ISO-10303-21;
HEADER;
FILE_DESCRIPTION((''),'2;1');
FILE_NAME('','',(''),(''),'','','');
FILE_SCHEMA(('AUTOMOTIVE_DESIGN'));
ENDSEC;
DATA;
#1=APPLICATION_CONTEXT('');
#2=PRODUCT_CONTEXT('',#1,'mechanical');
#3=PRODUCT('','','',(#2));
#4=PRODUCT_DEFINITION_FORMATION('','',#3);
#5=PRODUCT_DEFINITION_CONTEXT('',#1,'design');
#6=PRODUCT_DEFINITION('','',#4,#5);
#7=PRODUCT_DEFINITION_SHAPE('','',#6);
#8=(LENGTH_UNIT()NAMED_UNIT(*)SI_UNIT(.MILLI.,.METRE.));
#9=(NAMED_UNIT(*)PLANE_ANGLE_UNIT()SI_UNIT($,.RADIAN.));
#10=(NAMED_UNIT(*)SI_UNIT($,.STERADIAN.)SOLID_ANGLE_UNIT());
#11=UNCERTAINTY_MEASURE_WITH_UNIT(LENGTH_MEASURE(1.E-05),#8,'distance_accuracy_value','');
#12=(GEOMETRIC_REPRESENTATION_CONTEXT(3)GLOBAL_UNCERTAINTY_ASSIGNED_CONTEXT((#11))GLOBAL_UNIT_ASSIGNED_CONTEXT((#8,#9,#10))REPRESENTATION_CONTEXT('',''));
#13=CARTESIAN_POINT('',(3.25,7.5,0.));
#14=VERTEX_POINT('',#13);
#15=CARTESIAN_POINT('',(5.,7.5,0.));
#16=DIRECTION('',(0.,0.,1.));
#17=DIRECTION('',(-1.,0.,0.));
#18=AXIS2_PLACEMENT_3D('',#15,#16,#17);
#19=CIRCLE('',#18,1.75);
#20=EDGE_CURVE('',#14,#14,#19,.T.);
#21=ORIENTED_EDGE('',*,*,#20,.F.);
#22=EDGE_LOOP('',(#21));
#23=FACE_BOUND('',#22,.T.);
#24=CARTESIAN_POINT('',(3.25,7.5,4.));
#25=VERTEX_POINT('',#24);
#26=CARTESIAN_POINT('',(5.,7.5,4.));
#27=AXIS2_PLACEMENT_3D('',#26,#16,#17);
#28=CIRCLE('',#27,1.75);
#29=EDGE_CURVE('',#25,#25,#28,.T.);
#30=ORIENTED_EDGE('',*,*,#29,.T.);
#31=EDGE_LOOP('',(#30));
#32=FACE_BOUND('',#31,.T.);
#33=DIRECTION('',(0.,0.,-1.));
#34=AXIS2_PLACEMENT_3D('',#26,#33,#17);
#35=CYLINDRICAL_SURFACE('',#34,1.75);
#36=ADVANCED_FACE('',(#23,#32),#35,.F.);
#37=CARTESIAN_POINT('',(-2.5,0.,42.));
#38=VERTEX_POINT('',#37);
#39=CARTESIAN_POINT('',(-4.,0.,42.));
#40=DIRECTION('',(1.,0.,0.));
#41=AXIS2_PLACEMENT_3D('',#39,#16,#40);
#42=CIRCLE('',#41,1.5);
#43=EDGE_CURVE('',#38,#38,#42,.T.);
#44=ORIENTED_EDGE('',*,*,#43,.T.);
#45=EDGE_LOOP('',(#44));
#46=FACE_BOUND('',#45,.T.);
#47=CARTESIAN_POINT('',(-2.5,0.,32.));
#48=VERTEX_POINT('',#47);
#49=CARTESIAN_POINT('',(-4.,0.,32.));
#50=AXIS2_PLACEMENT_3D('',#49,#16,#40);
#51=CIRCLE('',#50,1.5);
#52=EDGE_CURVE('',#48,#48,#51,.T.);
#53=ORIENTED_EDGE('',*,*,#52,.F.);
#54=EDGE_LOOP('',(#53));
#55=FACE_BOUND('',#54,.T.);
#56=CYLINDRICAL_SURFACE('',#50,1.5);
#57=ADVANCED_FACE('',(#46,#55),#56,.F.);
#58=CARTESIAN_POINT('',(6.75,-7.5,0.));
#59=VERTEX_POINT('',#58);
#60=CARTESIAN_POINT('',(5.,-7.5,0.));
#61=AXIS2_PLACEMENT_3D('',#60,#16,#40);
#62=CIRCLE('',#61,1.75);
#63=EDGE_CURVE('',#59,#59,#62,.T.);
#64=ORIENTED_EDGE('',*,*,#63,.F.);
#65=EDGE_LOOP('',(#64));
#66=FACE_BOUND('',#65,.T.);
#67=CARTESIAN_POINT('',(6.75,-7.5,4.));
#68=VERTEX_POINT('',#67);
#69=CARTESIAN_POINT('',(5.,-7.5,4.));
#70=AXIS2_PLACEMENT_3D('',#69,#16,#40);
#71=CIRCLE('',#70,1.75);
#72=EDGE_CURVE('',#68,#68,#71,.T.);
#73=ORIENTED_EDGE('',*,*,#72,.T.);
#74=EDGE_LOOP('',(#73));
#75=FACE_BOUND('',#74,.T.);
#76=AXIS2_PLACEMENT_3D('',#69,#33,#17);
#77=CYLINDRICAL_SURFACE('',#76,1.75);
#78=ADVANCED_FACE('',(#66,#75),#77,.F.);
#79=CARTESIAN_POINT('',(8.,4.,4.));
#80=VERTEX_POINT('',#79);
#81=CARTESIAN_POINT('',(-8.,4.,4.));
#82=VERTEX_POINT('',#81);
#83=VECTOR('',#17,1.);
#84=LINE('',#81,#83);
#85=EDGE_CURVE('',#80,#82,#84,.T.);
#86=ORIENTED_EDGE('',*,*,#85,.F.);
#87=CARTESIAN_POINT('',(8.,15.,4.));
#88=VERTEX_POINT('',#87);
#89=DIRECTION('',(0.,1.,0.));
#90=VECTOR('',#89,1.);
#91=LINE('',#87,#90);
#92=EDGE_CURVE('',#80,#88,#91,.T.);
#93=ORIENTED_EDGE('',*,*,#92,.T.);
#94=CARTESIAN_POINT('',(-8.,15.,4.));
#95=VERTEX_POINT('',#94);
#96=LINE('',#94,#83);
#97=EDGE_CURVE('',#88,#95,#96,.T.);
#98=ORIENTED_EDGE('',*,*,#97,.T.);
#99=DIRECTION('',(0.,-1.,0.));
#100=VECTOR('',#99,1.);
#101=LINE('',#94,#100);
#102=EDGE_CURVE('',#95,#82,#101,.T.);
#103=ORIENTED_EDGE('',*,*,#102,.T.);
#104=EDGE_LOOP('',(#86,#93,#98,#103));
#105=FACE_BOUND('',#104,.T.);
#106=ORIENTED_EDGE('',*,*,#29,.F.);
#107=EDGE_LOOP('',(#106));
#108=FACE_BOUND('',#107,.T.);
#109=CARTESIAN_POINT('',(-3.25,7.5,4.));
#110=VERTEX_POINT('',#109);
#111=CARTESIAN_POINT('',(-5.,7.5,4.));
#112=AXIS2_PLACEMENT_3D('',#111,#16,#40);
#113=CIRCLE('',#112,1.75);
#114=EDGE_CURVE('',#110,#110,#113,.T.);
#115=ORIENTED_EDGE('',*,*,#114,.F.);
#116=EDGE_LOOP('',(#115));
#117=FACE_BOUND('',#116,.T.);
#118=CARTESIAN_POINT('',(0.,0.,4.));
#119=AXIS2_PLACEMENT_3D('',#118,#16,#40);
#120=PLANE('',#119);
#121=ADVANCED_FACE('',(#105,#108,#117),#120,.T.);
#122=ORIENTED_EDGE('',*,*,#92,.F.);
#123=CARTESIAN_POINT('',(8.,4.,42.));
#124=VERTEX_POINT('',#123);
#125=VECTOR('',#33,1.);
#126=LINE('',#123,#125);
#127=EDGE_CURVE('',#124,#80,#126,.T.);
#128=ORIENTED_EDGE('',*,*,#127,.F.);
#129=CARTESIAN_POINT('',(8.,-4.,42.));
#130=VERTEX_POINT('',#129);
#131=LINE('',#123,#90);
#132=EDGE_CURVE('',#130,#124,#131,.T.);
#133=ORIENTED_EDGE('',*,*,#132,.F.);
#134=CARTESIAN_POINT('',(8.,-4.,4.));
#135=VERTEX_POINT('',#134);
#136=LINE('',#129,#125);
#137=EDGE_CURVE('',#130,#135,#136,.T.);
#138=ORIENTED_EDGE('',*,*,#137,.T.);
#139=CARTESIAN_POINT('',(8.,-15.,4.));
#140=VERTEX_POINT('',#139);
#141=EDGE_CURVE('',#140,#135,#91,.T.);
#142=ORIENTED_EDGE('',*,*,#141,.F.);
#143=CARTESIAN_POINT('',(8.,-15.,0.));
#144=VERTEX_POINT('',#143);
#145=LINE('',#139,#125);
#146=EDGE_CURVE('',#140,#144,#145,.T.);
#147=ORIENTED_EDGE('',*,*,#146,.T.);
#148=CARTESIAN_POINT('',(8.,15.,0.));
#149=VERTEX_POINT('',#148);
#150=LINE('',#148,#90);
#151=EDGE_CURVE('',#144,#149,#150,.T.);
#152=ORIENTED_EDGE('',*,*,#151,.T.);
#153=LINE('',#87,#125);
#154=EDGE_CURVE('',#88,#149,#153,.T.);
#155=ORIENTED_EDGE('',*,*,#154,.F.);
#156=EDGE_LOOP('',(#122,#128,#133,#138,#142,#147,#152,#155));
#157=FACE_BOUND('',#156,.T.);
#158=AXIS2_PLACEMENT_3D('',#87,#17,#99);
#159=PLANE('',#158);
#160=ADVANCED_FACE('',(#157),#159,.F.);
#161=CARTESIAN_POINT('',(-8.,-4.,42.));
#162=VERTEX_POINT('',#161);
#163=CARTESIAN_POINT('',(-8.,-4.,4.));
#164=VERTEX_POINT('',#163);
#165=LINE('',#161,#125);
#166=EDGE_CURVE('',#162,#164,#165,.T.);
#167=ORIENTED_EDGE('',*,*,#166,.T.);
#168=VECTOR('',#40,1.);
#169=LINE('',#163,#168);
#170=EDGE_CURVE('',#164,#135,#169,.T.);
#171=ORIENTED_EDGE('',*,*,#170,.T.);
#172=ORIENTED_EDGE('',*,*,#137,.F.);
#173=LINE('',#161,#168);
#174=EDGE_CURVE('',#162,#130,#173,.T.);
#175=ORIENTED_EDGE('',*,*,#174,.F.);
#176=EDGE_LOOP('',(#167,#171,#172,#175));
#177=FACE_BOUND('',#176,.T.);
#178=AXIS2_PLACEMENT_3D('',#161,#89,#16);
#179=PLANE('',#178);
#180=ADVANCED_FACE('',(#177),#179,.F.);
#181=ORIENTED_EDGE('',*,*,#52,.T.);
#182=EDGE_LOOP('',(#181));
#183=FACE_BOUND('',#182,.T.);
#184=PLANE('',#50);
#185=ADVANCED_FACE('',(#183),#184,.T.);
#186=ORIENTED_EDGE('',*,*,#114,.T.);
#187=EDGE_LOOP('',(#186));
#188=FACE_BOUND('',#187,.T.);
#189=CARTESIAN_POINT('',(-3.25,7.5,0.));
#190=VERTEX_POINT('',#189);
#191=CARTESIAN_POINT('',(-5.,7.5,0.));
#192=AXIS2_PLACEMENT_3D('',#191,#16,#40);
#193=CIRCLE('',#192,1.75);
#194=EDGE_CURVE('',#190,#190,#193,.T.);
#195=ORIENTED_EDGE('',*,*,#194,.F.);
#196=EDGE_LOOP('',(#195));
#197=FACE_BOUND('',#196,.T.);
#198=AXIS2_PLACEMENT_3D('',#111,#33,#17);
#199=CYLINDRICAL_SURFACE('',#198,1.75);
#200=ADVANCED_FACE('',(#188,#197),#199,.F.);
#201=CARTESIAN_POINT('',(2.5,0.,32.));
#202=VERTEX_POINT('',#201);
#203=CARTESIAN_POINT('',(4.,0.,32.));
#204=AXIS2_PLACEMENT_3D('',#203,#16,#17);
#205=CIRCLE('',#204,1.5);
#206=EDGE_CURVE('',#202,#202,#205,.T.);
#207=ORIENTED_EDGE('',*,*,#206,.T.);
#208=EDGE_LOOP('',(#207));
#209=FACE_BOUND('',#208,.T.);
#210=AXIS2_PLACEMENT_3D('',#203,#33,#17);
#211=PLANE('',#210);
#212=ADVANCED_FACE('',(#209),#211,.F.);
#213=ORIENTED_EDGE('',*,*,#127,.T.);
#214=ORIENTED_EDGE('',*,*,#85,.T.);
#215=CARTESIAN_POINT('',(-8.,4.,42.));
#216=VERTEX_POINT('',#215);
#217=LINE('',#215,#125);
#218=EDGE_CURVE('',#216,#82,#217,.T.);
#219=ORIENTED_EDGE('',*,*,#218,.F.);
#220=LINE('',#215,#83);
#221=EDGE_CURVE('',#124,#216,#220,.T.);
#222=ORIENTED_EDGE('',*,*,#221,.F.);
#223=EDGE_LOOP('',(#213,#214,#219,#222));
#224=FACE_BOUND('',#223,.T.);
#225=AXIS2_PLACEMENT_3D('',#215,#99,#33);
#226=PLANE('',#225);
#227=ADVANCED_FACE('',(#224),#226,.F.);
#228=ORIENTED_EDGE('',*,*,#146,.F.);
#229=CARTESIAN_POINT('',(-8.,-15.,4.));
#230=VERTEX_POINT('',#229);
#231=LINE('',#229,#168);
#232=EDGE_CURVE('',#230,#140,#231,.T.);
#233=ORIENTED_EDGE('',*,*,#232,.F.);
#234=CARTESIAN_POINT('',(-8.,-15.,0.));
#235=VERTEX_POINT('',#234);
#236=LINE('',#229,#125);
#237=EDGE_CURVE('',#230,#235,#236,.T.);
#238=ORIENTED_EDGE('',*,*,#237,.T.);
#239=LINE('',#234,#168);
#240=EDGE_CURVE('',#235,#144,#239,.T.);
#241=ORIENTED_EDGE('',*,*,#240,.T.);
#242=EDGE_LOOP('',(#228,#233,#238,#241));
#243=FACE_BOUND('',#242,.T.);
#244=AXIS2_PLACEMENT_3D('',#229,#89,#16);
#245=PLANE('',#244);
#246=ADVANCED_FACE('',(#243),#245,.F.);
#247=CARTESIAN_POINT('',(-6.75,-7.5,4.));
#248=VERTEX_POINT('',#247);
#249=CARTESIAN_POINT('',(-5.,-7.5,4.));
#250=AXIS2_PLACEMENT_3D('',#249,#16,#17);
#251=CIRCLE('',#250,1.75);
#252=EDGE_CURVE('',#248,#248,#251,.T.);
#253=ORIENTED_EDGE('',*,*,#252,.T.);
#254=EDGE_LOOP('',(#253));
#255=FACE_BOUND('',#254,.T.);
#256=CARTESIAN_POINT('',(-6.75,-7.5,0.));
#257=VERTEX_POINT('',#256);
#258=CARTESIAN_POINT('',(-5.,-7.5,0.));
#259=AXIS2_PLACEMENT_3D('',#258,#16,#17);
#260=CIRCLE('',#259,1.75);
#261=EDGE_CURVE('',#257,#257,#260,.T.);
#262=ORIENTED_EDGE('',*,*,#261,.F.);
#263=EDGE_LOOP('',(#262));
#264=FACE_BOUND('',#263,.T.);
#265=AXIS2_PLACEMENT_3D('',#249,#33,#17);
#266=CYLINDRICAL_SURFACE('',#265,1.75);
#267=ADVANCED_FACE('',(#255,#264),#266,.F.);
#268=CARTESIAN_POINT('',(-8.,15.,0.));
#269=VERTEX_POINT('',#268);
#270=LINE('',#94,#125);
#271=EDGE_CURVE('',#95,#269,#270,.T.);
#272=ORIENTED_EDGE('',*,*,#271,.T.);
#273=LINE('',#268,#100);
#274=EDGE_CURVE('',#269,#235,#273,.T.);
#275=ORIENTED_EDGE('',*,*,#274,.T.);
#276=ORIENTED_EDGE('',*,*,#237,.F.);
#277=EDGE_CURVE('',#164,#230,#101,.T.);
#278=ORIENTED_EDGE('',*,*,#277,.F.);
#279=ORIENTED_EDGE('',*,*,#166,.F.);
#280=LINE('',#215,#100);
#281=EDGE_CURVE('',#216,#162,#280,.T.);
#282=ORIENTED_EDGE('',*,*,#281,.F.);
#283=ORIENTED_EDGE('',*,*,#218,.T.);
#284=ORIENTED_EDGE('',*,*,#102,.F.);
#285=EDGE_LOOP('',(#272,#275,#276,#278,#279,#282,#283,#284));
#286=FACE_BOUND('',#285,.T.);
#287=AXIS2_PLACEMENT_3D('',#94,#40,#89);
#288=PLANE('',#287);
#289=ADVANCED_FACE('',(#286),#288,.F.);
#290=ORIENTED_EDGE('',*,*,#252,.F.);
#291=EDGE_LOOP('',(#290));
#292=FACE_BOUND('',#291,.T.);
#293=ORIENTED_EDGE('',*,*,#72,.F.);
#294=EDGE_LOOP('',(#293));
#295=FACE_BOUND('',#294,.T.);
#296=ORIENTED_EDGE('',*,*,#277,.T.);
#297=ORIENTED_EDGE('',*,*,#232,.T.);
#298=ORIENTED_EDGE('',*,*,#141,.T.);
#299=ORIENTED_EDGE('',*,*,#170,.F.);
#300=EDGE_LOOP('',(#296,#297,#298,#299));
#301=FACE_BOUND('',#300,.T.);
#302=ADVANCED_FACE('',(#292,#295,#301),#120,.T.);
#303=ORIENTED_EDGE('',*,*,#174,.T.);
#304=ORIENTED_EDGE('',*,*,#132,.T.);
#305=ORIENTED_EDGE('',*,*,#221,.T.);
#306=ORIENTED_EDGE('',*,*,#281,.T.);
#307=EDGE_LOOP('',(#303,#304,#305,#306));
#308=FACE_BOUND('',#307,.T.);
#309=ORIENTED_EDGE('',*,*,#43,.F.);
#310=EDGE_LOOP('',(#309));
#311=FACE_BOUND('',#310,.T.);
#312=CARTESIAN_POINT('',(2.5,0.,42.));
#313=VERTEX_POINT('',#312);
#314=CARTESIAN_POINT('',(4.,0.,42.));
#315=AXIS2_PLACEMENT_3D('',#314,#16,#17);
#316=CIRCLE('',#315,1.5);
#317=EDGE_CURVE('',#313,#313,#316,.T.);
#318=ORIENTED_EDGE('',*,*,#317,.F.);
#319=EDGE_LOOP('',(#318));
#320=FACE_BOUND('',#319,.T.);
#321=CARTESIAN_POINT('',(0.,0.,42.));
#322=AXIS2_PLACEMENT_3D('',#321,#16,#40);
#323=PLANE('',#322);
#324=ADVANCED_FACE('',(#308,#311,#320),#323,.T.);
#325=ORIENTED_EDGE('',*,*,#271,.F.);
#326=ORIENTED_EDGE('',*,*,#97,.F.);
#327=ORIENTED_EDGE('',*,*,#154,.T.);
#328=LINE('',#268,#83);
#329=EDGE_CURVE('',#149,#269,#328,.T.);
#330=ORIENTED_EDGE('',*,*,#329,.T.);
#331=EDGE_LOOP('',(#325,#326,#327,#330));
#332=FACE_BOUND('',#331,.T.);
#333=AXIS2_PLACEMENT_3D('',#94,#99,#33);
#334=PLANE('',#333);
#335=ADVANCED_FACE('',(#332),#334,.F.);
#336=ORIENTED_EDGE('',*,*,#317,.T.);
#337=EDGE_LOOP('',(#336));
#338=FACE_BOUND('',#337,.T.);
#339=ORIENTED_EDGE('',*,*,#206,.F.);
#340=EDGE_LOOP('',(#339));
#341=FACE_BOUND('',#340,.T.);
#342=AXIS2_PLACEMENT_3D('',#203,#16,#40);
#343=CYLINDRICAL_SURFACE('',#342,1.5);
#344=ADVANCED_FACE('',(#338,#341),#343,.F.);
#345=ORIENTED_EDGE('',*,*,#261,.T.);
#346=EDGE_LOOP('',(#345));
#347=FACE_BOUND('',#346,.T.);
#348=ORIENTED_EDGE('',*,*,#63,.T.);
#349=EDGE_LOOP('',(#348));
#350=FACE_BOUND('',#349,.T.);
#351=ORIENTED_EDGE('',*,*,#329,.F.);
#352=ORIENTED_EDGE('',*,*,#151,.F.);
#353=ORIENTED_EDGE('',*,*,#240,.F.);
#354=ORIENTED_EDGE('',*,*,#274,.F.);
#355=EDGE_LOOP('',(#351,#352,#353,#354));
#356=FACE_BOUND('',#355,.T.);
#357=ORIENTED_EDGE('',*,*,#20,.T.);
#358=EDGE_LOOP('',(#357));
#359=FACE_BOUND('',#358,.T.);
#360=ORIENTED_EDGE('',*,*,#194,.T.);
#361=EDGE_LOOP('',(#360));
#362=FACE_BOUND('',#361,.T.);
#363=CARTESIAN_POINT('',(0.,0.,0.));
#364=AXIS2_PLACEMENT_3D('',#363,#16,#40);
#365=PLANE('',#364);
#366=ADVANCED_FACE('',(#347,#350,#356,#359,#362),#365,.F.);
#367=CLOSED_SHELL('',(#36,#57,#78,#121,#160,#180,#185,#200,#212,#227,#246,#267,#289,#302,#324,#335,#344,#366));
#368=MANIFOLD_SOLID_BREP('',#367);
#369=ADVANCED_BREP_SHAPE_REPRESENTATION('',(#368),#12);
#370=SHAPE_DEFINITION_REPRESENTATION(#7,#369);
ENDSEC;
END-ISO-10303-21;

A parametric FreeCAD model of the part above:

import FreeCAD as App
import Part
import Sketcher
Q = App.Units.Quantity

doc = App.newDocument("Part")
body = doc.addObject("PartDesign::Body", "Body")

# Sketch on XY plane
sketch1 = body.newObject("Sketcher::SketchObject", "Sketch")
sketch1.AttachmentSupport = (doc.getObject("XY_Plane"), [""])
sketch1.MapMode = "FlatFace"
sketch1.addGeometry([
    Part.LineSegment(App.Vector(-8, 15, 0), App.Vector(-8, -15, 0)),  # 0
    Part.LineSegment(App.Vector(-8, -15, 0), App.Vector(8, -15, 0)),  # 1
    Part.LineSegment(App.Vector(8, -15, 0), App.Vector(8, 15, 0)),  # 2
    Part.LineSegment(App.Vector(8, 15, 0), App.Vector(-8, 15, 0)),  # 3
    Part.Circle(App.Vector(-5, -7.5, 0), App.Vector(0, 0, 1), 1.75),  # 4
    Part.Circle(App.Vector(5, -7.5, 0), App.Vector(0, 0, 1), 1.75),  # 5
    Part.Circle(App.Vector(-5, 7.5, 0), App.Vector(0, 0, 1), 1.75),  # 6
    Part.Circle(App.Vector(5, 7.5, 0), App.Vector(0, 0, 1), 1.75),  # 7
], False)
sketch1.addConstraint([
    Sketcher.Constraint("Coincident", 0, 2, 1, 1),
    Sketcher.Constraint("Coincident", 1, 2, 2, 1),
    Sketcher.Constraint("Coincident", 2, 2, 3, 1),
    Sketcher.Constraint("Coincident", 3, 2, 0, 1),
    Sketcher.Constraint("Vertical", 0),
    Sketcher.Constraint("Horizontal", 1),
    Sketcher.Constraint("Vertical", 2),
    Sketcher.Constraint("Horizontal", 3),
    Sketcher.Constraint("Equal", 4, 5),
    Sketcher.Constraint("Equal", 5, 6),
    Sketcher.Constraint("Equal", 6, 7),
    Sketcher.Constraint("Symmetric", 5, 3, 6, 3, -1, 1),
    Sketcher.Constraint("Symmetric", 4, 3, 7, 3, -1, 1),
    Sketcher.Constraint("Symmetric", 0, 2, 2, 2, -1, 1),
    Sketcher.Constraint("Symmetric", 4, 3, 5, 3, -2),
    Sketcher.Constraint("Diameter", 4, Q("3.5 mm")),
    Sketcher.Constraint("DistanceX", 1, 1, 1, 2, Q("16 mm")),
    Sketcher.Constraint("DistanceY", 0, 2, 0, 1, Q("30 mm")),
    Sketcher.Constraint("DistanceX", 4, 3, -1, 1, Q("5 mm")),
    Sketcher.Constraint("DistanceY", 4, 3, 6, 3, Q("15 mm")),
])
pad1 = body.newObject("PartDesign::Pad", "Pad")
pad1.Profile = sketch1
pad1.Length = 4

# Sketch on XY plane
sketch2 = body.newObject("Sketcher::SketchObject", "Sketch001")
sketch2.AttachmentSupport = (doc.getObject("XY_Plane"), [""])
sketch2.MapMode = "FlatFace"
sketch2.AttachmentOffset = App.Placement(App.Vector(0, 0, 4), App.Rotation())
sketch2.addGeometry([
    Part.LineSegment(App.Vector(-8, 4, 0), App.Vector(-8, -4, 0)),
    Part.LineSegment(App.Vector(-8, -4, 0), App.Vector(8, -4, 0)),
    Part.LineSegment(App.Vector(8, -4, 0), App.Vector(8, 4, 0)),
    Part.LineSegment(App.Vector(8, 4, 0), App.Vector(-8, 4, 0)),
], False)
sketch2.addConstraint([
    Sketcher.Constraint("Coincident", 0, 2, 1, 1),
    Sketcher.Constraint("Coincident", 1, 2, 2, 1),
    Sketcher.Constraint("Coincident", 2, 2, 3, 1),
    Sketcher.Constraint("Coincident", 3, 2, 0, 1),
    Sketcher.Constraint("Vertical", 0),
    Sketcher.Constraint("Horizontal", 1),
    Sketcher.Constraint("Vertical", 2),
    Sketcher.Constraint("Horizontal", 3),
    Sketcher.Constraint("Symmetric", 0, 2, 2, 2, -1, 1),
    Sketcher.Constraint("DistanceX", 1, 1, 1, 2, Q("16 mm")),
    Sketcher.Constraint("DistanceY", 0, 2, 0, 1, Q("8 mm")),
])
pad2 = body.newObject("PartDesign::Pad", "Pad001")
pad2.Profile = sketch2
pad2.Length = 38

# Sketch on XY plane
sketch3 = body.newObject("Sketcher::SketchObject", "Sketch002")
sketch3.AttachmentSupport = (doc.getObject("XY_Plane"), [""])
sketch3.MapMode = "FlatFace"
sketch3.AttachmentOffset = App.Placement(App.Vector(0, 0, 42), App.Rotation())
sketch3.addGeometry([
    Part.Circle(App.Vector(-4, 0, 0), App.Vector(0, 0, 1), 1.5),
    Part.Circle(App.Vector(4, 0, 0), App.Vector(0, 0, 1), 1.5),
], False)
sketch3.addConstraint([
    Sketcher.Constraint("Equal", 0, 1),
    Sketcher.Constraint("Symmetric", 0, 3, 1, 3, -1, 1),
    Sketcher.Constraint("PointOnObject", 0, 3, -1),
    Sketcher.Constraint("Diameter", 0, Q("3 mm")),
    Sketcher.Constraint("DistanceX", 0, 3, -1, 1, Q("4 mm")),
])
pocket1 = body.newObject("PartDesign::Pocket", "Pocket")
pocket1.Profile = sketch3
pocket1.Length = 10

doc.recompute()
